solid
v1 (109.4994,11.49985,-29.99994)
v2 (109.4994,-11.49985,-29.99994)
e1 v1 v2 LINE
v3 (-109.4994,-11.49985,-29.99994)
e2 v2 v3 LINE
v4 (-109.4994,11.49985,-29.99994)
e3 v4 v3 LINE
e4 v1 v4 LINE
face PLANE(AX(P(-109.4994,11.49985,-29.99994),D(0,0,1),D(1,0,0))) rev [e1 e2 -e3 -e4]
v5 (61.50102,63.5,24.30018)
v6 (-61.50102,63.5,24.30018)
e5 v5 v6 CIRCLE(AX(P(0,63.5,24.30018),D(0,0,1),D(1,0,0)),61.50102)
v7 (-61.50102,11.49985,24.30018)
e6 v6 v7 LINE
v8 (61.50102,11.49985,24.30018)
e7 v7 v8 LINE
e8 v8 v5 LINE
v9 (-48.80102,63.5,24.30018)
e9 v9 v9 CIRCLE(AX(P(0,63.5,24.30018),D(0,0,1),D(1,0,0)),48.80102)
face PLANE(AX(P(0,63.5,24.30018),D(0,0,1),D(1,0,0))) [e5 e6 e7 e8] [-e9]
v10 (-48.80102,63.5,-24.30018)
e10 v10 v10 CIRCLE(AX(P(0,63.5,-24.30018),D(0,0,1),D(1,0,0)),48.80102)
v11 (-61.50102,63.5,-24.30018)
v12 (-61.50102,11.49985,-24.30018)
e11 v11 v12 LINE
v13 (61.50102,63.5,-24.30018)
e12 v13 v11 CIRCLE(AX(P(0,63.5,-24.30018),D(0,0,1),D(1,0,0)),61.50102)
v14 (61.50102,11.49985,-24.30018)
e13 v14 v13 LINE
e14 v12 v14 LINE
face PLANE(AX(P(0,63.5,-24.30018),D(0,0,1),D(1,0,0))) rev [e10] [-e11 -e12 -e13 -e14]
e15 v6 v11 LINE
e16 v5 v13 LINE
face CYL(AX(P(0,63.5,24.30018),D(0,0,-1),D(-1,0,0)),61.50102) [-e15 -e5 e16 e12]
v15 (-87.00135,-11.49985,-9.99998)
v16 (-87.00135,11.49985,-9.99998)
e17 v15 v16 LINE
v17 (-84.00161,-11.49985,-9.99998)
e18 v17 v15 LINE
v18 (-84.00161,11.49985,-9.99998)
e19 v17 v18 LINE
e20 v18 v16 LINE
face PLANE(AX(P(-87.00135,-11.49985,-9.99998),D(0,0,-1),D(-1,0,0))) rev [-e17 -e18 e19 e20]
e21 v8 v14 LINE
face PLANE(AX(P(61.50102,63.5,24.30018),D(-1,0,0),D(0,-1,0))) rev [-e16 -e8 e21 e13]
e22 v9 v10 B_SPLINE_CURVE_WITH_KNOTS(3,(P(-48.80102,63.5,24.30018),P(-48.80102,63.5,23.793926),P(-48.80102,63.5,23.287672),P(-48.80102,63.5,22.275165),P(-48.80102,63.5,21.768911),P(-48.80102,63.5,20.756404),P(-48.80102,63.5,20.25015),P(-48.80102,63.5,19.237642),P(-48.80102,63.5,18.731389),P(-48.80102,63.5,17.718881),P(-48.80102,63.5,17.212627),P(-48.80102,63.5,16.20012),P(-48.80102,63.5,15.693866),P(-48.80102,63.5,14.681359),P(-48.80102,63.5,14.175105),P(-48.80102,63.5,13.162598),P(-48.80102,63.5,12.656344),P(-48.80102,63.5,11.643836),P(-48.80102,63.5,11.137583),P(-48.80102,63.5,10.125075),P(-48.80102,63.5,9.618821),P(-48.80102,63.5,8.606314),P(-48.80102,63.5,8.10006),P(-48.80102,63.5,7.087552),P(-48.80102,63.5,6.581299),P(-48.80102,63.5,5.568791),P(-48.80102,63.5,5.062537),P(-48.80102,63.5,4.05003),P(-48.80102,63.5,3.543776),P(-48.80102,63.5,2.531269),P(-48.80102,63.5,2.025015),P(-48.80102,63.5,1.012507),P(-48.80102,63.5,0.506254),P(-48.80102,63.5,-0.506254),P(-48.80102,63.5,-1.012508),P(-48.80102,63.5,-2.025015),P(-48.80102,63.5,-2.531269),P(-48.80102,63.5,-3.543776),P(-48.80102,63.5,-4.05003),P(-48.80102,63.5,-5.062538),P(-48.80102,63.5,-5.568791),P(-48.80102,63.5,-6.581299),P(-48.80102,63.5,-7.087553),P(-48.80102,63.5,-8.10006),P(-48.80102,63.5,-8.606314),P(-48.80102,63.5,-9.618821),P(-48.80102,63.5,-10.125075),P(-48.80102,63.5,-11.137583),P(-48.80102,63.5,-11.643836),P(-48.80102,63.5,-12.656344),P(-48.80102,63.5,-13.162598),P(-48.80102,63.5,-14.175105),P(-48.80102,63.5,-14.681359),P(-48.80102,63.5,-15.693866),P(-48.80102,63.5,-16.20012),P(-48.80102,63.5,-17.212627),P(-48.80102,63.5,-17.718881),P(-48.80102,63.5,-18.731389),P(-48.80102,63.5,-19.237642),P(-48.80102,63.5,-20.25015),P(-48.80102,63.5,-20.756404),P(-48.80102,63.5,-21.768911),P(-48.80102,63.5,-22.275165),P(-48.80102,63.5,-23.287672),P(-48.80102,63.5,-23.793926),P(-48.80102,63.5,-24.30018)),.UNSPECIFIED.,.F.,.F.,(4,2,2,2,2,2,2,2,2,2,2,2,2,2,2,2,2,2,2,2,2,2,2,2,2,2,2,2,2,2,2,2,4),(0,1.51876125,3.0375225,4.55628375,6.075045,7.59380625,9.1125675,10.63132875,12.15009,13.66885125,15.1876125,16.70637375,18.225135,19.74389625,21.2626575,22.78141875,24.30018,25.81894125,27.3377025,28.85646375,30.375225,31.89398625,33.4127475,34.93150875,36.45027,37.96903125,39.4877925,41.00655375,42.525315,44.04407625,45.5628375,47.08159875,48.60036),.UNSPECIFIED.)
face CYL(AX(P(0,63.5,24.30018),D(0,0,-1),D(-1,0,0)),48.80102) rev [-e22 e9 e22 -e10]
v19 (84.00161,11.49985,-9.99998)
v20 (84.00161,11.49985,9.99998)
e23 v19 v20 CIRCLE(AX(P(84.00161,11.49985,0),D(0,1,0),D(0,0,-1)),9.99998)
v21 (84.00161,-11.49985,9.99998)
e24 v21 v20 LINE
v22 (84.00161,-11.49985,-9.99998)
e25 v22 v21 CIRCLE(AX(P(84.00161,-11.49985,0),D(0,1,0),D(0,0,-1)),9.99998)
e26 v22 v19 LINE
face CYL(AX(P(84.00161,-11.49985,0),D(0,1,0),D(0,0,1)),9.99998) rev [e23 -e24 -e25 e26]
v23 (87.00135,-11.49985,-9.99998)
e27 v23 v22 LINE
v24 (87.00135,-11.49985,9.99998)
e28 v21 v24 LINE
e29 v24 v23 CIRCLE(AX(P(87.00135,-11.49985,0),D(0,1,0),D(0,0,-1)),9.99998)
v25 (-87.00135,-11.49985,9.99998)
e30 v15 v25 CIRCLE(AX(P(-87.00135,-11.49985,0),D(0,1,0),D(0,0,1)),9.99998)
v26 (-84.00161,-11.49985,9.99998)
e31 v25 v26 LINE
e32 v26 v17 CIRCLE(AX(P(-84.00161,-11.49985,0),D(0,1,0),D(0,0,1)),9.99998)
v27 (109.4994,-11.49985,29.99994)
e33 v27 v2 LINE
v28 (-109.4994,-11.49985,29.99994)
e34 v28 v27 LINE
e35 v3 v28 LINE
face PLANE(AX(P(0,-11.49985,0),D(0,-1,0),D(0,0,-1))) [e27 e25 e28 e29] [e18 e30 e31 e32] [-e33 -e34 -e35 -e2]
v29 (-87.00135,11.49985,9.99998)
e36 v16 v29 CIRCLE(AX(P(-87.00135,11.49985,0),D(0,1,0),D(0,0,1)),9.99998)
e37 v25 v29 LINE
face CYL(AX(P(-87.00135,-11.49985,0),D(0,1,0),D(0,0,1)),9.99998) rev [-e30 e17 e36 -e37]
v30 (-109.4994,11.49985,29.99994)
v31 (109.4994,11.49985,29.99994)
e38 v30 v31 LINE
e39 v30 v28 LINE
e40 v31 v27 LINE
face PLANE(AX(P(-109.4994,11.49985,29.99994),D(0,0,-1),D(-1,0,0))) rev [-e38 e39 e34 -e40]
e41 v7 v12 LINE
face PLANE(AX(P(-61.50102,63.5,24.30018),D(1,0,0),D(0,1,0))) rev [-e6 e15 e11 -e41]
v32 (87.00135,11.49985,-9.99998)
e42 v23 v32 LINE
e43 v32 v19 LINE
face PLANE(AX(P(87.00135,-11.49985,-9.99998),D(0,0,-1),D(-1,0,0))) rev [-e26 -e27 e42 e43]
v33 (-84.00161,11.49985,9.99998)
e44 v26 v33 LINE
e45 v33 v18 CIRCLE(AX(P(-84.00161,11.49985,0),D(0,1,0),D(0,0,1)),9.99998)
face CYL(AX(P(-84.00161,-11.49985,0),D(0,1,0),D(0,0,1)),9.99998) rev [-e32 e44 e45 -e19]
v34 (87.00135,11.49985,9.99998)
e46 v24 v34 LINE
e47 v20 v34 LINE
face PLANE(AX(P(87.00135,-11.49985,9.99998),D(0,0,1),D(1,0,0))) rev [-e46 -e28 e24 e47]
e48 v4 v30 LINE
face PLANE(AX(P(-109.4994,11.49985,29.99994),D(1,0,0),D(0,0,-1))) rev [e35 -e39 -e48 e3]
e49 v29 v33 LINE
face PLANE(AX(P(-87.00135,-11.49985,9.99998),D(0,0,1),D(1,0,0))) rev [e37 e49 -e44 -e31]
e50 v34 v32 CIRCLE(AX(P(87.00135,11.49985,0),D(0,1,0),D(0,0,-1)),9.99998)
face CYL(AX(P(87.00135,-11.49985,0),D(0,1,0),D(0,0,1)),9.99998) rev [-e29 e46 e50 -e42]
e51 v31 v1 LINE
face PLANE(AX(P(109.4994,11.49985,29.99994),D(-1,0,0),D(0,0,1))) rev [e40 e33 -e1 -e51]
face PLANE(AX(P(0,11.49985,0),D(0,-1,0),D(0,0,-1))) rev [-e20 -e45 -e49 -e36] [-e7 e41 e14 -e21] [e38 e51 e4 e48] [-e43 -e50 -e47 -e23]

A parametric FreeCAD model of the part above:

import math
import FreeCAD as App
import Part
import Sketcher

V = App.Vector
Q = App.Units.Quantity


def add_polygon(sketch, points):
    """Adds a closed chain of lines whose ends are joined by coincident constraints."""
    first, n = sketch.GeometryCount, len(points)
    for a, b in zip(points, points[1:] + points[:1]):
        sketch.addGeometry(Part.LineSegment(App.Vector(*a, 0), App.Vector(*b, 0)), False)
    for i in range(n):
        sketch.addConstraint(Sketcher.Constraint("Coincident", first + i, 2, first + (i + 1) % n, 1))

doc = App.newDocument("Part")
body = doc.addObject("PartDesign::Body", "Body")

sketch1 = body.newObject("Sketcher::SketchObject", "Sketch")
sketch1.AttachmentSupport = (doc.getObject("XZ_Plane"), [""])
sketch1.MapMode = "FlatFace"
add_polygon(sketch1, [(-109, -30), (-109, 30), (109, 30), (109, -30)])
sketch1.addConstraint(Sketcher.Constraint("Vertical", 0))
sketch1.addConstraint(Sketcher.Constraint("Horizontal", 1))
sketch1.addConstraint(Sketcher.Constraint("Vertical", 2))
sketch1.addConstraint(Sketcher.Constraint("Horizontal", 3))
sketch1.addConstraint(Sketcher.Constraint("Symmetric", 0, 2, 2, 2, -1, 1))
sketch1.addConstraint(Sketcher.Constraint("DistanceX", 1, 1, 1, 2, Q("8.622 in")))
sketch1.addConstraint(Sketcher.Constraint("DistanceY", 0, 1, 0, 2, Q("2.3622 in")))
pad1 = body.newObject("PartDesign::Pad", "Pad")
pad1.Profile = sketch1
pad1.Length = Q("0.9055 in")
pad1.Midplane = True

sketch2 = body.newObject("Sketcher::SketchObject", "Sketch001")
sketch2.AttachmentSupport = (doc.getObject("XZ_Plane"), [""])
sketch2.MapMode = "FlatFace"
sketch2.AttachmentOffset = App.Placement(V(0, 0, -11.49985), App.Rotation())
sketch2.addGeometry(Part.LineSegment(V(-84, -10, 0), V(-87, -10, 0)), False)
sketch2.addGeometry(Part.ArcOfCircle(Part.Circle(V(-87, 0, 0), V(0, 0, 1), 10), math.radians(90), math.radians(270)), False)
sketch2.addGeometry(Part.LineSegment(V(-87, 10, 0), V(-84, 10, 0)), False)
sketch2.addGeometry(Part.ArcOfCircle(Part.Circle(V(-84, 0, 0), V(0, 0, 1), 10), math.radians(-90), math.radians(90)), False)
sketch2.addGeometry(Part.LineSegment(V(87, -10, 0), V(84, -10, 0)), False)
sketch2.addGeometry(Part.ArcOfCircle(Part.Circle(V(84, 0, 0), V(0, 0, 1), 10), math.radians(90), math.radians(270)), False)
sketch2.addGeometry(Part.LineSegment(V(84, 10, 0), V(87, 10, 0)), False)
sketch2.addGeometry(Part.ArcOfCircle(Part.Circle(V(87, 0, 0), V(0, 0, 1), 10), math.radians(-90), math.radians(90)), False)
sketch2.addConstraint(Sketcher.Constraint("Tangent", 0, 2, 1, 2))
sketch2.addConstraint(Sketcher.Constraint("Tangent", 1, 1, 2, 1))
sketch2.addConstraint(Sketcher.Constraint("Tangent", 2, 2, 3, 2))
sketch2.addConstraint(Sketcher.Constraint("Tangent", 3, 1, 0, 1))
sketch2.addConstraint(Sketcher.Constraint("Tangent", 4, 2, 5, 2))
sketch2.addConstraint(Sketcher.Constraint("Tangent", 5, 1, 6, 1))
sketch2.addConstraint(Sketcher.Constraint("Tangent", 6, 2, 7, 2))
sketch2.addConstraint(Sketcher.Constraint("Tangent", 7, 1, 4, 1))
sketch2.addConstraint(Sketcher.Constraint("Horizontal", 0))
sketch2.addConstraint(Sketcher.Constraint("Horizontal", 2))
sketch2.addConstraint(Sketcher.Constraint("Horizontal", 4))
sketch2.addConstraint(Sketcher.Constraint("Horizontal", 6))
sketch2.addConstraint(Sketcher.Constraint("Equal", 3, 5))
sketch2.addConstraint(Sketcher.Constraint("Symmetric", 3, 3, 5, 3, -1, 1))
sketch2.addConstraint(Sketcher.Constraint("Symmetric", 1, 3, 7, 3, -2))
sketch2.addConstraint(Sketcher.Constraint("Radius", 1, Q("0.3937 in")))
sketch2.addConstraint(Sketcher.Constraint("DistanceX", 0, 2, 0, 1, Q("0.1181 in")))
sketch2.addConstraint(Sketcher.Constraint("DistanceX", 3, 3, 5, 3, Q("6.6143 in")))
pocket1 = body.newObject("PartDesign::Pocket", "Pocket")
pocket1.Profile = sketch2
pocket1.Length = Q("0.9055 in")
pocket1.Reversed = True

sketch3 = body.newObject("Sketcher::SketchObject", "Sketch002")
sketch3.AttachmentSupport = (doc.getObject("XY_Plane"), [""])
sketch3.MapMode = "FlatFace"
sketch3.addGeometry(Part.LineSegment(V(-62, 64, 0), V(-62, 11, 0)), False)
sketch3.addGeometry(Part.LineSegment(V(-62, 11, 0), V(62, 11, 0)), False)
sketch3.addGeometry(Part.LineSegment(V(62, 11, 0), V(62, 64, 0)), False)
sketch3.addGeometry(Part.ArcOfCircle(Part.Circle(V(0, 64, 0), V(0, 0, 1), 62), math.radians(0), math.radians(180)), False)
sketch3.addGeometry(Part.Circle(V(0, 64, 0), V(0, 0, 1), 49), False)
sketch3.addConstraint(Sketcher.Constraint("Coincident", 0, 2, 1, 1))
sketch3.addConstraint(Sketcher.Constraint("Coincident", 1, 2, 2, 1))
sketch3.addConstraint(Sketcher.Constraint("Tangent", 2, 2, 3, 1))
sketch3.addConstraint(Sketcher.Constraint("Tangent", 3, 2, 0, 1))
sketch3.addConstraint(Sketcher.Constraint("Vertical", 0))
sketch3.addConstraint(Sketcher.Constraint("Horizontal", 1))
sketch3.addConstraint(Sketcher.Constraint("Vertical", 2))
sketch3.addConstraint(Sketcher.Constraint("Coincident", 4, 3, 3, 3))
sketch3.addConstraint(Sketcher.Constraint("PointOnObject", 3, 3, -2))
sketch3.addConstraint(Sketcher.Constraint("Diameter", 4, Q("3.8426 in")))
sketch3.addConstraint(Sketcher.Constraint("DistanceY", -1, 1, 3, 3, Q("2.5 in")))
sketch3.addConstraint(Sketcher.Constraint("Radius", 3, Q("2.4213 in")))
sketch3.addConstraint(Sketcher.Constraint("DistanceY", 0, 2, 0, 1, 52.00015))
pad2 = body.newObject("PartDesign::Pad", "Pad001")
pad2.Profile = sketch3
pad2.Length = Q("1.9134 in")
pad2.Midplane = True

doc.recompute()
